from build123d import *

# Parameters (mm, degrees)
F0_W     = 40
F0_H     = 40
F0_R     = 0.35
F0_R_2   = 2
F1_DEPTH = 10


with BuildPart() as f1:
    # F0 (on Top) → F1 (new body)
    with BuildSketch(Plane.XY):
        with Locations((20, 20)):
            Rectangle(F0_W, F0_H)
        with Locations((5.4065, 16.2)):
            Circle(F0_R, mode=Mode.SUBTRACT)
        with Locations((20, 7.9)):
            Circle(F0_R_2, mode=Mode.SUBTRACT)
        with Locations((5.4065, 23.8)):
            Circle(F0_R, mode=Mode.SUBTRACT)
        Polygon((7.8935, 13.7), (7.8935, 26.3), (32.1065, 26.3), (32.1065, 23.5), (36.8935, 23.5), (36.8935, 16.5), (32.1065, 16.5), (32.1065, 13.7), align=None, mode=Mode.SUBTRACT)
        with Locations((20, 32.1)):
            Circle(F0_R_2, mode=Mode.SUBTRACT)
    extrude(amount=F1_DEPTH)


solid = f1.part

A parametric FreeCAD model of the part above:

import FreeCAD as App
import Part
import Sketcher

V = App.Vector
Q = App.Units.Quantity

doc = App.newDocument("Part")
body = doc.addObject("PartDesign::Body", "Body")

sketch1 = doc.addObject("Sketcher::SketchObject", "Sketch")
body.addObject(sketch1)
sketch1.AttachmentSupport = (doc.XY_Plane, [""])
sketch1.MapMode = "FlatFace"
sketch1.addGeometry([
    Part.LineSegment(V(0, 40, 0), V(0, 0, 0)),
    Part.LineSegment(V(0, 0, 0), V(40, 0, 0)),
    Part.LineSegment(V(40, 0, 0), V(40, 40, 0)),
    Part.LineSegment(V(40, 40, 0), V(0, 40, 0)),
    Part.Circle(V(20, 7.9, 0), V(0, 0, 1), 2),
    Part.Circle(V(5.4065, 16.2, 0), V(0, 0, 1), 0.35),
    Part.LineSegment(V(32.1065, 13.7, 0), V(7.8935, 13.7, 0)),
    Part.LineSegment(V(7.8935, 13.7, 0), V(7.8935, 26.3, 0)),
    Part.LineSegment(V(7.8935, 26.3, 0), V(32.1065, 26.3, 0)),
    Part.LineSegment(V(32.1065, 26.3, 0), V(32.1065, 23.5, 0)),
    Part.LineSegment(V(32.1065, 23.5, 0), V(36.8935, 23.5, 0)),
    Part.LineSegment(V(36.8935, 23.5, 0), V(36.8935, 16.5, 0)),
    Part.LineSegment(V(36.8935, 16.5, 0), V(32.1065, 16.5, 0)),
    Part.LineSegment(V(32.1065, 16.5, 0), V(32.1065, 13.7, 0)),
    Part.Circle(V(5.4065, 23.8, 0), V(0, 0, 1), 0.35),
    Part.Circle(V(20, 32.1, 0), V(0, 0, 1), 2),
], False)
sketch1.addConstraint([
    Sketcher.Constraint("Coincident", 0, 2, 1, 1),
    Sketcher.Constraint("Coincident", 1, 2, 2, 1),
    Sketcher.Constraint("Coincident", 2, 2, 3, 1),
    Sketcher.Constraint("Coincident", 3, 2, 0, 1),
    Sketcher.Constraint("Coincident", 6, 2, 7, 1),
    Sketcher.Constraint("Coincident", 7, 2, 8, 1),
    Sketcher.Constraint("Coincident", 8, 2, 9, 1),
    Sketcher.Constraint("Coincident", 9, 2, 10, 1),
    Sketcher.Constraint("Coincident", 10, 2, 11, 1),
    Sketcher.Constraint("Coincident", 11, 2, 12, 1),
    Sketcher.Constraint("Coincident", 12, 2, 13, 1),
    Sketcher.Constraint("Coincident", 13, 2, 6, 1),
    Sketcher.Constraint("Vertical", 0),
    Sketcher.Constraint("Horizontal", 1),
    Sketcher.Constraint("Vertical", 2),
    Sketcher.Constraint("Horizontal", 3),
    Sketcher.Constraint("Horizontal", 6),
    Sketcher.Constraint("Vertical", 7),
    Sketcher.Constraint("Horizontal", 8),
    Sketcher.Constraint("Vertical", 9),
    Sketcher.Constraint("Horizontal", 10),
    Sketcher.Constraint("Vertical", 11),
    Sketcher.Constraint("Horizontal", 12),
    Sketcher.Constraint("Vertical", 13),
    Sketcher.Constraint("Coincident", 0, 2, -1, 1),
    Sketcher.Constraint("Equal", 5, 14),
    Sketcher.Constraint("Equal", 4, 15),
    Sketcher.Constraint("Vertical", 5, 3, 14, 3),
    Sketcher.Constraint("Vertical", 4, 3, 15, 3),
    Sketcher.Constraint("Vertical", 9, 2, 12, 2),
    Sketcher.Constraint("Equal", 3, 0),
    Sketcher.Constraint("Equal", 9, 13),
    Sketcher.Constraint("Diameter", 4, Q("4 mm")),
    Sketcher.Constraint("Diameter", 5, Q("0.7 mm")),
    Sketcher.Constraint("DistanceX", 1, 1, 1, 2, Q("40 mm")),
    Sketcher.Constraint("DistanceY", 11, 2, 11, 1, Q("7 mm")),
    Sketcher.Constraint("DistanceY", 7, 1, 7, 2, Q("12.6 mm")),
    Sketcher.Constraint("DistanceX", -1, 1, 4, 3, Q("20 mm")),
    Sketcher.Constraint("DistanceY", -1, 1, 4, 3, Q("7.9 mm")),
    Sketcher.Constraint("DistanceY", -1, 1, 5, 3, Q("16.2 mm")),
    Sketcher.Constraint("DistanceY", -1, 1, 14, 3, Q("23.8 mm")),
    Sketcher.Constraint("DistanceY", -1, 1, 15, 3, Q("32.1 mm")),
    Sketcher.Constraint("DistanceY", -1, 1, 6, 2, Q("13.7 mm")),
    Sketcher.Constraint("DistanceX", 14, 3, 8, 2, Q("26.7 mm")),
    Sketcher.Constraint("DistanceX", 6, 2, 6, 1, Q("24.213 mm")),
    Sketcher.Constraint("DistanceX", 10, 1, 10, 2, Q("4.787 mm")),
    Sketcher.Constraint("DistanceX", -1, 1, 5, 3, Q("5.4065 mm")),
])
pad1 = doc.addObject("PartDesign::Pad", "Pad")
body.addObject(pad1)
pad1.Profile = sketch1
pad1.Length = 10

doc.recompute()
